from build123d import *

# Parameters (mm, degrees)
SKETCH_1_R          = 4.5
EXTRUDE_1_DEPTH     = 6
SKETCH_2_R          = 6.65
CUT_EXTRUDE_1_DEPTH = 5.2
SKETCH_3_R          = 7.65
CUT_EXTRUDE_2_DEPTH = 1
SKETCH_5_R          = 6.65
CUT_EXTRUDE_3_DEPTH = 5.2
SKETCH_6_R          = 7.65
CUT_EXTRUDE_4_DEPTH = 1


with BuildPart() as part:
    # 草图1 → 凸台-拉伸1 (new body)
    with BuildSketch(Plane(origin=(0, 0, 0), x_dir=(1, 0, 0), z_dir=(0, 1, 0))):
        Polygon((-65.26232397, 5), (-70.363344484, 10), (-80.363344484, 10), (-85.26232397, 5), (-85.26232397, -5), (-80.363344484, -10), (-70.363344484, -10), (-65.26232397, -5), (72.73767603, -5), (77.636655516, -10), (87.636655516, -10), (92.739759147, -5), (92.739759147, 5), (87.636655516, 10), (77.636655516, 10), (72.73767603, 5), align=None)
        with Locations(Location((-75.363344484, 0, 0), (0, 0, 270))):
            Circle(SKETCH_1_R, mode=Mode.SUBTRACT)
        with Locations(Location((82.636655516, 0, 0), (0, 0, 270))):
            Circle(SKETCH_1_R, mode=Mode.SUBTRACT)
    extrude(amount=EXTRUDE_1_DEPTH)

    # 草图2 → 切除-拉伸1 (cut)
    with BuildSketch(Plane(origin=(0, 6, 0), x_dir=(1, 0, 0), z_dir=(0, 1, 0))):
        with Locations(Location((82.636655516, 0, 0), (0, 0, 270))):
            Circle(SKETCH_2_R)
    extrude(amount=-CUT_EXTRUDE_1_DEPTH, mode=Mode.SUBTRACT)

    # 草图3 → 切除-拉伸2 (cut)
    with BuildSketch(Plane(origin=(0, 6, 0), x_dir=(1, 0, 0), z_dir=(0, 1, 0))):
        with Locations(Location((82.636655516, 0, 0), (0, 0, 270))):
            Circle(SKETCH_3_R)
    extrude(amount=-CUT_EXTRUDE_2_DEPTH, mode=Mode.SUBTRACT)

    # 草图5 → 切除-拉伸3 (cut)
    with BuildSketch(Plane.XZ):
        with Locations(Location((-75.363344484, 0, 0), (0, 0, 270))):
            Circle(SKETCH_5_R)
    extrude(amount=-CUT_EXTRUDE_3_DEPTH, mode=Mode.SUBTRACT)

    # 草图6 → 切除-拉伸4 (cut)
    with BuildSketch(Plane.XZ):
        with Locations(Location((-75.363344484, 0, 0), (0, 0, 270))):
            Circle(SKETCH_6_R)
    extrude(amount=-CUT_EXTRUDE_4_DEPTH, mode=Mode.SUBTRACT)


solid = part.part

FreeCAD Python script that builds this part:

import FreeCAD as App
import Part
import Sketcher
Q = App.Units.Quantity

doc = App.newDocument("Part")
body = doc.addObject("PartDesign::Body", "Body")

# Sketch on XZ plane
sketch1 = doc.addObject("Sketcher::SketchObject", "Sketch")
body.addObject(sketch1)
sketch1.AttachmentSupport = (doc.XZ_Plane, [""])
sketch1.MapMode = "FlatFace"
sketch1.addGeometry(Part.LineSegment(App.Vector(-65.3, -5, 0), App.Vector(-70.4, -10, 0)), False)
sketch1.addGeometry(Part.LineSegment(App.Vector(-70.4, -10, 0), App.Vector(-80.4, -10, 0)), False)
sketch1.addGeometry(Part.LineSegment(App.Vector(-80.4, -10, 0), App.Vector(-85.3, -5, 0)), False)
sketch1.addGeometry(Part.LineSegment(App.Vector(-85.3, -5, 0), App.Vector(-85.3, 5, 0)), False)
sketch1.addGeometry(Part.LineSegment(App.Vector(-85.3, 5, 0), App.Vector(-80.4, 10, 0)), False)
sketch1.addGeometry(Part.LineSegment(App.Vector(-80.4, 10, 0), App.Vector(-70.4, 10, 0)), False)
sketch1.addGeometry(Part.LineSegment(App.Vector(-70.4, 10, 0), App.Vector(-65.3, 5, 0)), False)
sketch1.addGeometry(Part.LineSegment(App.Vector(-65.3, 5, 0), App.Vector(72.7, 5, 0)), False)
sketch1.addGeometry(Part.LineSegment(App.Vector(72.7, 5, 0), App.Vector(77.6, 10, 0)), False)
sketch1.addGeometry(Part.LineSegment(App.Vector(77.6, 10, 0), App.Vector(87.6, 10, 0)), False)
sketch1.addGeometry(Part.LineSegment(App.Vector(87.6, 10, 0), App.Vector(92.7, 5, 0)), False)
sketch1.addGeometry(Part.LineSegment(App.Vector(92.7, 5, 0), App.Vector(92.7, -5, 0)), False)
sketch1.addGeometry(Part.LineSegment(App.Vector(92.7, -5, 0), App.Vector(87.6, -10, 0)), False)
sketch1.addGeometry(Part.LineSegment(App.Vector(87.6, -10, 0), App.Vector(77.6, -10, 0)), False)
sketch1.addGeometry(Part.LineSegment(App.Vector(77.6, -10, 0), App.Vector(72.7, -5, 0)), False)
sketch1.addGeometry(Part.LineSegment(App.Vector(72.7, -5, 0), App.Vector(-65.3, -5, 0)), False)
sketch1.addGeometry(Part.Circle(App.Vector(-75.4, 0, 0), App.Vector(0, 0, 1), 4.5), False)
sketch1.addGeometry(Part.Circle(App.Vector(82.6, 0, 0), App.Vector(0, 0, 1), 4.5), False)
sketch1.addConstraint(Sketcher.Constraint("Coincident", 0, 2, 1, 1))
sketch1.addConstraint(Sketcher.Constraint("Coincident", 1, 2, 2, 1))
sketch1.addConstraint(Sketcher.Constraint("Coincident", 2, 2, 3, 1))
sketch1.addConstraint(Sketcher.Constraint("Coincident", 3, 2, 4, 1))
sketch1.addConstraint(Sketcher.Constraint("Coincident", 4, 2, 5, 1))
sketch1.addConstraint(Sketcher.Constraint("Coincident", 5, 2, 6, 1))
sketch1.addConstraint(Sketcher.Constraint("Coincident", 6, 2, 7, 1))
sketch1.addConstraint(Sketcher.Constraint("Coincident", 7, 2, 8, 1))
sketch1.addConstraint(Sketcher.Constraint("Coincident", 8, 2, 9, 1))
sketch1.addConstraint(Sketcher.Constraint("Coincident", 9, 2, 10, 1))
sketch1.addConstraint(Sketcher.Constraint("Coincident", 10, 2, 11, 1))
sketch1.addConstraint(Sketcher.Constraint("Coincident", 11, 2, 12, 1))
sketch1.addConstraint(Sketcher.Constraint("Coincident", 12, 2, 13, 1))
sketch1.addConstraint(Sketcher.Constraint("Coincident", 13, 2, 14, 1))
sketch1.addConstraint(Sketcher.Constraint("Coincident", 14, 2, 15, 1))
sketch1.addConstraint(Sketcher.Constraint("Coincident", 15, 2, 0, 1))
sketch1.addConstraint(Sketcher.Constraint("Horizontal", 1))
sketch1.addConstraint(Sketcher.Constraint("Vertical", 3))
sketch1.addConstraint(Sketcher.Constraint("Horizontal", 5))
sketch1.addConstraint(Sketcher.Constraint("Horizontal", 7))
sketch1.addConstraint(Sketcher.Constraint("Horizontal", 9))
sketch1.addConstraint(Sketcher.Constraint("Vertical", 11))
sketch1.addConstraint(Sketcher.Constraint("Horizontal", 13))
sketch1.addConstraint(Sketcher.Constraint("Horizontal", 15))
sketch1.addConstraint(Sketcher.Constraint("Equal", 16, 17))
sketch1.addConstraint(Sketcher.Constraint("Symmetric", 1, 2, 4, 2, -1))
sketch1.addConstraint(Sketcher.Constraint("Symmetric", 9, 2, 12, 2, -1))
sketch1.addConstraint(Sketcher.Constraint("Symmetric", 7, 2, 14, 2, -1))
sketch1.addConstraint(Sketcher.Constraint("PointOnObject", 16, 3, -1))
sketch1.addConstraint(Sketcher.Constraint("PointOnObject", 17, 3, -1))
sketch1.addConstraint(Sketcher.Constraint("Parallel", 4, 8))
sketch1.addConstraint(Sketcher.Constraint("Perpendicular", 8, 10))
sketch1.addConstraint(Sketcher.Constraint("Perpendicular", 2, 12))
sketch1.addConstraint(Sketcher.Constraint("Perpendicular", 12, 14))
sketch1.addConstraint(Sketcher.Constraint("Horizontal", 3, 2, 6, 2))
sketch1.addConstraint(Sketcher.Constraint("Horizontal", 5, 2, 8, 2))
sketch1.addConstraint(Sketcher.Constraint("Horizontal", 7, 2, 10, 2))
sketch1.addConstraint(Sketcher.Constraint("Horizontal", 2, 2, 11, 2))
sketch1.addConstraint(Sketcher.Constraint("Vertical", 0, 2, 5, 2))
sketch1.addConstraint(Sketcher.Constraint("Vertical", 6, 2, 15, 2))
sketch1.addConstraint(Sketcher.Constraint("Equal", 5, 9))
sketch1.addConstraint(Sketcher.Constraint("Equal", 13, 3))
sketch1.addConstraint(Sketcher.Constraint("Diameter", 16, Q("9 mm")))
sketch1.addConstraint(Sketcher.Constraint("DistanceX", 1, 2, 1, 1, Q("10 mm")))
sketch1.addConstraint(Sketcher.Constraint("DistanceX", 7, 1, 7, 2, Q("138 mm")))
sketch1.addConstraint(Sketcher.Constraint("Distance", 2, Q("7 mm")))
sketch1.addConstraint(Sketcher.Constraint("DistanceY", 0, 2, -1, 1, Q("10 mm")))
sketch1.addConstraint(Sketcher.Constraint("DistanceX", 16, 3, 17, 3, Q("158 mm")))
sketch1.addConstraint(Sketcher.Constraint("DistanceX", 16, 3, 0, 2, Q("5 mm")))
sketch1.addConstraint(Sketcher.Constraint("DistanceX", 3, 2, 6, 2, Q("20 mm")))
sketch1.addConstraint(Sketcher.Constraint("DistanceX", -1, 1, 10, 2, Q("92.739759 mm")))
pad1 = doc.addObject("PartDesign::Pad", "Pad")
body.addObject(pad1)
pad1.Profile = sketch1
pad1.Length = 6
pad1.Reversed = True

# Sketch on XZ plane
sketch2 = doc.addObject("Sketcher::SketchObject", "Sketch001")
body.addObject(sketch2)
sketch2.AttachmentSupport = (doc.XZ_Plane, [""])
sketch2.MapMode = "FlatFace"
sketch2.AttachmentOffset = App.Placement(App.Vector(0, 0, -6), App.Rotation())
sketch2.addGeometry(Part.Circle(App.Vector(83, 0, 0), App.Vector(0, 0, 1), 7), False)
sketch2.addConstraint(Sketcher.Constraint("PointOnObject", 0, 3, -1))
sketch2.addConstraint(Sketcher.Constraint("Diameter", 0, Q("13.3 mm")))
sketch2.addConstraint(Sketcher.Constraint("DistanceX", -1, 1, 0, 3, Q("82.636656 mm")))
pocket1 = doc.addObject("PartDesign::Pocket", "Pocket")
body.addObject(pocket1)
pocket1.Profile = sketch2
pocket1.Length = 5.2
pocket1.Reversed = True

# Sketch on XZ plane
sketch3 = doc.addObject("Sketcher::SketchObject", "Sketch002")
body.addObject(sketch3)
sketch3.AttachmentSupport = (doc.XZ_Plane, [""])
sketch3.MapMode = "FlatFace"
sketch3.AttachmentOffset = App.Placement(App.Vector(0, 0, -6), App.Rotation())
sketch3.addGeometry(Part.Circle(App.Vector(83, 0, 0), App.Vector(0, 0, 1), 8), False)
sketch3.addConstraint(Sketcher.Constraint("PointOnObject", 0, 3, -1))
sketch3.addConstraint(Sketcher.Constraint("Diameter", 0, Q("15.3 mm")))
sketch3.addConstraint(Sketcher.Constraint("DistanceX", -1, 1, 0, 3, Q("82.636656 mm")))
pocket2 = doc.addObject("PartDesign::Pocket", "Pocket001")
body.addObject(pocket2)
pocket2.Profile = sketch3
pocket2.Length = 1
pocket2.Reversed = True

# Sketch on XZ plane
sketch4 = doc.addObject("Sketcher::SketchObject", "Sketch003")
body.addObject(sketch4)
sketch4.AttachmentSupport = (doc.XZ_Plane, [""])
sketch4.MapMode = "FlatFace"
sketch4.addGeometry(Part.Circle(App.Vector(-75, 0, 0), App.Vector(0, 0, 1), 7), False)
sketch4.addConstraint(Sketcher.Constraint("PointOnObject", 0, 3, -1))
sketch4.addConstraint(Sketcher.Constraint("Diameter", 0, Q("13.3 mm")))
sketch4.addConstraint(Sketcher.Constraint("DistanceX", 0, 3, -1, 1, Q("75.363344 mm")))
pocket3 = doc.addObject("PartDesign::Pocket", "Pocket002")
body.addObject(pocket3)
pocket3.Profile = sketch4
pocket3.Length = 5.2

# Sketch on XZ plane
sketch5 = doc.addObject("Sketcher::SketchObject", "Sketch004")
body.addObject(sketch5)
sketch5.AttachmentSupport = (doc.XZ_Plane, [""])
sketch5.MapMode = "FlatFace"
sketch5.addGeometry(Part.Circle(App.Vector(-75, 0, 0), App.Vector(0, 0, 1), 8), False)
sketch5.addConstraint(Sketcher.Constraint("PointOnObject", 0, 3, -1))
sketch5.addConstraint(Sketcher.Constraint("Diameter", 0, Q("15.3 mm")))
sketch5.addConstraint(Sketcher.Constraint("DistanceX", 0, 3, -1, 1, Q("75.363344 mm")))
pocket4 = doc.addObject("PartDesign::Pocket", "Pocket003")
body.addObject(pocket4)
pocket4.Profile = sketch5
pocket4.Length = 1

doc.recompute()
